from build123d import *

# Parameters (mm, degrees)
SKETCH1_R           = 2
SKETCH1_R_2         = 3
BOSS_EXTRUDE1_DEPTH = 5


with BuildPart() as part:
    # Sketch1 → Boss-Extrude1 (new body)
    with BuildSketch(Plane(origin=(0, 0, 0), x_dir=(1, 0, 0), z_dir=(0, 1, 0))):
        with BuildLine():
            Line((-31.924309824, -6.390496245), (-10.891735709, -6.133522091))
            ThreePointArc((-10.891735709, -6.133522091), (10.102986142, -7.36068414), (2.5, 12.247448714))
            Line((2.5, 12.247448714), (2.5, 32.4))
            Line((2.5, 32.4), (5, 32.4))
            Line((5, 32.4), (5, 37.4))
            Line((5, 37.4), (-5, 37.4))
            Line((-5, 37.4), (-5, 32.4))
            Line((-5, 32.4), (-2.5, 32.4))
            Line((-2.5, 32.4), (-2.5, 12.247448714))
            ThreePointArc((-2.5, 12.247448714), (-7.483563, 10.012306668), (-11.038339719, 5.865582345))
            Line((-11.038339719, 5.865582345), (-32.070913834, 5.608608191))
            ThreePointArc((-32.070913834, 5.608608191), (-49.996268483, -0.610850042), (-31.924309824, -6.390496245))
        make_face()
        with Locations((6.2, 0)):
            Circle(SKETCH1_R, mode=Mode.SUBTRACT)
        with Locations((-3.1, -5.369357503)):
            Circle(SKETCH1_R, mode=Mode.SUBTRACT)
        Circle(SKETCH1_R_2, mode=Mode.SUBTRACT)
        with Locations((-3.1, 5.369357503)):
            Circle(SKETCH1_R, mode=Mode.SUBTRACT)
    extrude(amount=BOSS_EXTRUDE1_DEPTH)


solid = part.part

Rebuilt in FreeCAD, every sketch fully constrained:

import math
import FreeCAD as App
import Part
import Sketcher
Q = App.Units.Quantity

doc = App.newDocument("Part")
params = doc.addObject("Spreadsheet::Sheet", "Params")
for row, (alias, value) in enumerate([
    ("sketch1_diameter", "4 mm"),
    ("sketch1_diameter2", "6 mm"),
    ("sketch1_radius", "10 mm"),
    ("sketch1_radius2", "12.5 mm"),
    ("sketch1_width", "10 mm"),
    ("pad1_length", "5 mm"),
], start=1):
    params.set(f"A{row}", alias)
    params.set(f"B{row}", "=" + value)
    params.setAlias(f"B{row}", alias)

body = doc.addObject("PartDesign::Body", "Body")

# Sketch on XZ plane
sketch1 = doc.addObject("Sketcher::SketchObject", "Sketch")
body.addObject(sketch1)
sketch1.AttachmentSupport = (doc.XZ_Plane, [""])
sketch1.MapMode = "FlatFace"
sketch1.addGeometry([
    Part.LineSegment(App.Vector(-31.9, 6.4, 0), App.Vector(-10.9, 6.1, 0)),  # 0
    Part.ArcOfCircle(Part.Circle(App.Vector(0, 0, 0), App.Vector(0, 0, 1), 12.5), math.radians(-78), math.radians(151)),  # 1
    Part.LineSegment(App.Vector(2.5, -12.2, 0), App.Vector(2.5, -32.4, 0)),  # 2
    Part.LineSegment(App.Vector(2.5, -32.4, 0), App.Vector(5, -32.4, 0)),  # 3
    Part.LineSegment(App.Vector(5, -32.4, 0), App.Vector(5, -37.4, 0)),  # 4
    Part.LineSegment(App.Vector(5, -37.4, 0), App.Vector(-5, -37.4, 0)),  # 5
    Part.LineSegment(App.Vector(-5, -37.4, 0), App.Vector(-5, -32.4, 0)),  # 6
    Part.LineSegment(App.Vector(-5, -32.4, 0), App.Vector(-2.5, -32.4, 0)),  # 7
    Part.LineSegment(App.Vector(-2.5, -32.4, 0), App.Vector(-2.5, -12.2, 0)),  # 8
    Part.ArcOfCircle(Part.Circle(App.Vector(0, 0, 0), App.Vector(0, 0, 1), 12.5), math.radians(-152), math.radians(-102)),  # 9
    Part.LineSegment(App.Vector(-11, -5.9, 0), App.Vector(-32.1, -5.6, 0)),  # 10
    Part.ArcOfCircle(Part.Circle(App.Vector(-40, 0.5, 0), App.Vector(0, 0, 1), 10), math.radians(36), math.radians(322)),  # 11
    Part.Circle(App.Vector(-3.1, 5.4, 0), App.Vector(0, 0, 1), 2),  # 12
    Part.Circle(App.Vector(0, 0, 0), App.Vector(0, 0, 1), 3),  # 13
    Part.Circle(App.Vector(-3.1, -5.4, 0), App.Vector(0, 0, 1), 2),  # 14
    Part.Circle(App.Vector(6.2, 0, 0), App.Vector(0, 0, 1), 2),  # 15
], False)
sketch1.addConstraint([
    Sketcher.Constraint("Coincident", 0, 2, 1, 2),
    Sketcher.Constraint("Coincident", 1, 1, 2, 1),
    Sketcher.Constraint("Coincident", 2, 2, 3, 1),
    Sketcher.Constraint("Coincident", 3, 2, 4, 1),
    Sketcher.Constraint("Coincident", 4, 2, 5, 1),
    Sketcher.Constraint("Coincident", 5, 2, 6, 1),
    Sketcher.Constraint("Coincident", 6, 2, 7, 1),
    Sketcher.Constraint("Coincident", 7, 2, 8, 1),
    Sketcher.Constraint("Coincident", 8, 2, 9, 2),
    Sketcher.Constraint("Coincident", 9, 1, 10, 1),
    Sketcher.Constraint("Coincident", 10, 2, 11, 2),
    Sketcher.Constraint("Coincident", 11, 1, 0, 1),
    Sketcher.Constraint("Vertical", 2),
    Sketcher.Constraint("Horizontal", 3),
    Sketcher.Constraint("Vertical", 4),
    Sketcher.Constraint("Horizontal", 5),
    Sketcher.Constraint("Vertical", 6),
    Sketcher.Constraint("Horizontal", 7),
    Sketcher.Constraint("Vertical", 8),
    Sketcher.Constraint("Coincident", 1, 3, -1, 1),
    Sketcher.Constraint("Coincident", 9, 3, -1, 1),
    Sketcher.Constraint("Coincident", 13, 3, -1, 1),
    Sketcher.Constraint("Equal", 1, 9),
    Sketcher.Constraint("Equal", 12, 14),
    Sketcher.Constraint("Equal", 14, 15),
    Sketcher.Constraint("Symmetric", 3, 2, 6, 2, -2),
    Sketcher.Constraint("Symmetric", 12, 3, 14, 3, -1),
    Sketcher.Constraint("PointOnObject", 15, 3, -1),
    Sketcher.Constraint("Parallel", 0, 10),
    Sketcher.Constraint("Horizontal", 1, 1, 8, 2),
    Sketcher.Constraint("Equal", 0, 10),
    Sketcher.Constraint("Diameter", 12, Q("4 mm")),
    Sketcher.Constraint("Diameter", 13, Q("6 mm")),
    Sketcher.Constraint("Radius", 11, Q("10 mm")),
    Sketcher.Constraint("Radius", 1, Q("12.5 mm")),
    Sketcher.Constraint("DistanceX", 5, 2, 5, 1, Q("10 mm")),
    Sketcher.Constraint("DistanceY", 4, 2, 4, 1, Q("5 mm")),
    Sketcher.Constraint("DistanceX", 3, 1, 3, 2, Q("2.5 mm")),
    Sketcher.Constraint("Angle", 0, Q("-0.7 deg")),
    Sketcher.Constraint("DistanceX", 12, 3, -1, 1, Q("3.1 mm")),
    Sketcher.Constraint("DistanceX", -1, 1, 15, 3, Q("6.2 mm")),
    Sketcher.Constraint("DistanceY", 2, 2, -1, 1, Q("32.4 mm")),
    Sketcher.Constraint("DistanceX", 11, 3, 10, 2, Q("7.926101 mm")),
    Sketcher.Constraint("DistanceY", -1, 1, 11, 3, Q("0.48868 mm")),
    Sketcher.Constraint("DistanceX", 11, 1, -1, 1, Q("31.92431 mm")),
    Sketcher.Constraint("DistanceY", 14, 3, 0, 2, Q("11.50288 mm")),
])
sketch1.setExpression("Constraints[31]", "Params.sketch1_diameter")
sketch1.setExpression("Constraints[32]", "Params.sketch1_diameter2")
sketch1.setExpression("Constraints[33]", "Params.sketch1_radius")
sketch1.setExpression("Constraints[34]", "Params.sketch1_radius2")
sketch1.setExpression("Constraints[35]", "Params.sketch1_width")
pad1 = doc.addObject("PartDesign::Pad", "Pad")
body.addObject(pad1)
pad1.Profile = sketch1
pad1.setExpression("Length", "Params.pad1_length")
pad1.Reversed = True

doc.recompute()
